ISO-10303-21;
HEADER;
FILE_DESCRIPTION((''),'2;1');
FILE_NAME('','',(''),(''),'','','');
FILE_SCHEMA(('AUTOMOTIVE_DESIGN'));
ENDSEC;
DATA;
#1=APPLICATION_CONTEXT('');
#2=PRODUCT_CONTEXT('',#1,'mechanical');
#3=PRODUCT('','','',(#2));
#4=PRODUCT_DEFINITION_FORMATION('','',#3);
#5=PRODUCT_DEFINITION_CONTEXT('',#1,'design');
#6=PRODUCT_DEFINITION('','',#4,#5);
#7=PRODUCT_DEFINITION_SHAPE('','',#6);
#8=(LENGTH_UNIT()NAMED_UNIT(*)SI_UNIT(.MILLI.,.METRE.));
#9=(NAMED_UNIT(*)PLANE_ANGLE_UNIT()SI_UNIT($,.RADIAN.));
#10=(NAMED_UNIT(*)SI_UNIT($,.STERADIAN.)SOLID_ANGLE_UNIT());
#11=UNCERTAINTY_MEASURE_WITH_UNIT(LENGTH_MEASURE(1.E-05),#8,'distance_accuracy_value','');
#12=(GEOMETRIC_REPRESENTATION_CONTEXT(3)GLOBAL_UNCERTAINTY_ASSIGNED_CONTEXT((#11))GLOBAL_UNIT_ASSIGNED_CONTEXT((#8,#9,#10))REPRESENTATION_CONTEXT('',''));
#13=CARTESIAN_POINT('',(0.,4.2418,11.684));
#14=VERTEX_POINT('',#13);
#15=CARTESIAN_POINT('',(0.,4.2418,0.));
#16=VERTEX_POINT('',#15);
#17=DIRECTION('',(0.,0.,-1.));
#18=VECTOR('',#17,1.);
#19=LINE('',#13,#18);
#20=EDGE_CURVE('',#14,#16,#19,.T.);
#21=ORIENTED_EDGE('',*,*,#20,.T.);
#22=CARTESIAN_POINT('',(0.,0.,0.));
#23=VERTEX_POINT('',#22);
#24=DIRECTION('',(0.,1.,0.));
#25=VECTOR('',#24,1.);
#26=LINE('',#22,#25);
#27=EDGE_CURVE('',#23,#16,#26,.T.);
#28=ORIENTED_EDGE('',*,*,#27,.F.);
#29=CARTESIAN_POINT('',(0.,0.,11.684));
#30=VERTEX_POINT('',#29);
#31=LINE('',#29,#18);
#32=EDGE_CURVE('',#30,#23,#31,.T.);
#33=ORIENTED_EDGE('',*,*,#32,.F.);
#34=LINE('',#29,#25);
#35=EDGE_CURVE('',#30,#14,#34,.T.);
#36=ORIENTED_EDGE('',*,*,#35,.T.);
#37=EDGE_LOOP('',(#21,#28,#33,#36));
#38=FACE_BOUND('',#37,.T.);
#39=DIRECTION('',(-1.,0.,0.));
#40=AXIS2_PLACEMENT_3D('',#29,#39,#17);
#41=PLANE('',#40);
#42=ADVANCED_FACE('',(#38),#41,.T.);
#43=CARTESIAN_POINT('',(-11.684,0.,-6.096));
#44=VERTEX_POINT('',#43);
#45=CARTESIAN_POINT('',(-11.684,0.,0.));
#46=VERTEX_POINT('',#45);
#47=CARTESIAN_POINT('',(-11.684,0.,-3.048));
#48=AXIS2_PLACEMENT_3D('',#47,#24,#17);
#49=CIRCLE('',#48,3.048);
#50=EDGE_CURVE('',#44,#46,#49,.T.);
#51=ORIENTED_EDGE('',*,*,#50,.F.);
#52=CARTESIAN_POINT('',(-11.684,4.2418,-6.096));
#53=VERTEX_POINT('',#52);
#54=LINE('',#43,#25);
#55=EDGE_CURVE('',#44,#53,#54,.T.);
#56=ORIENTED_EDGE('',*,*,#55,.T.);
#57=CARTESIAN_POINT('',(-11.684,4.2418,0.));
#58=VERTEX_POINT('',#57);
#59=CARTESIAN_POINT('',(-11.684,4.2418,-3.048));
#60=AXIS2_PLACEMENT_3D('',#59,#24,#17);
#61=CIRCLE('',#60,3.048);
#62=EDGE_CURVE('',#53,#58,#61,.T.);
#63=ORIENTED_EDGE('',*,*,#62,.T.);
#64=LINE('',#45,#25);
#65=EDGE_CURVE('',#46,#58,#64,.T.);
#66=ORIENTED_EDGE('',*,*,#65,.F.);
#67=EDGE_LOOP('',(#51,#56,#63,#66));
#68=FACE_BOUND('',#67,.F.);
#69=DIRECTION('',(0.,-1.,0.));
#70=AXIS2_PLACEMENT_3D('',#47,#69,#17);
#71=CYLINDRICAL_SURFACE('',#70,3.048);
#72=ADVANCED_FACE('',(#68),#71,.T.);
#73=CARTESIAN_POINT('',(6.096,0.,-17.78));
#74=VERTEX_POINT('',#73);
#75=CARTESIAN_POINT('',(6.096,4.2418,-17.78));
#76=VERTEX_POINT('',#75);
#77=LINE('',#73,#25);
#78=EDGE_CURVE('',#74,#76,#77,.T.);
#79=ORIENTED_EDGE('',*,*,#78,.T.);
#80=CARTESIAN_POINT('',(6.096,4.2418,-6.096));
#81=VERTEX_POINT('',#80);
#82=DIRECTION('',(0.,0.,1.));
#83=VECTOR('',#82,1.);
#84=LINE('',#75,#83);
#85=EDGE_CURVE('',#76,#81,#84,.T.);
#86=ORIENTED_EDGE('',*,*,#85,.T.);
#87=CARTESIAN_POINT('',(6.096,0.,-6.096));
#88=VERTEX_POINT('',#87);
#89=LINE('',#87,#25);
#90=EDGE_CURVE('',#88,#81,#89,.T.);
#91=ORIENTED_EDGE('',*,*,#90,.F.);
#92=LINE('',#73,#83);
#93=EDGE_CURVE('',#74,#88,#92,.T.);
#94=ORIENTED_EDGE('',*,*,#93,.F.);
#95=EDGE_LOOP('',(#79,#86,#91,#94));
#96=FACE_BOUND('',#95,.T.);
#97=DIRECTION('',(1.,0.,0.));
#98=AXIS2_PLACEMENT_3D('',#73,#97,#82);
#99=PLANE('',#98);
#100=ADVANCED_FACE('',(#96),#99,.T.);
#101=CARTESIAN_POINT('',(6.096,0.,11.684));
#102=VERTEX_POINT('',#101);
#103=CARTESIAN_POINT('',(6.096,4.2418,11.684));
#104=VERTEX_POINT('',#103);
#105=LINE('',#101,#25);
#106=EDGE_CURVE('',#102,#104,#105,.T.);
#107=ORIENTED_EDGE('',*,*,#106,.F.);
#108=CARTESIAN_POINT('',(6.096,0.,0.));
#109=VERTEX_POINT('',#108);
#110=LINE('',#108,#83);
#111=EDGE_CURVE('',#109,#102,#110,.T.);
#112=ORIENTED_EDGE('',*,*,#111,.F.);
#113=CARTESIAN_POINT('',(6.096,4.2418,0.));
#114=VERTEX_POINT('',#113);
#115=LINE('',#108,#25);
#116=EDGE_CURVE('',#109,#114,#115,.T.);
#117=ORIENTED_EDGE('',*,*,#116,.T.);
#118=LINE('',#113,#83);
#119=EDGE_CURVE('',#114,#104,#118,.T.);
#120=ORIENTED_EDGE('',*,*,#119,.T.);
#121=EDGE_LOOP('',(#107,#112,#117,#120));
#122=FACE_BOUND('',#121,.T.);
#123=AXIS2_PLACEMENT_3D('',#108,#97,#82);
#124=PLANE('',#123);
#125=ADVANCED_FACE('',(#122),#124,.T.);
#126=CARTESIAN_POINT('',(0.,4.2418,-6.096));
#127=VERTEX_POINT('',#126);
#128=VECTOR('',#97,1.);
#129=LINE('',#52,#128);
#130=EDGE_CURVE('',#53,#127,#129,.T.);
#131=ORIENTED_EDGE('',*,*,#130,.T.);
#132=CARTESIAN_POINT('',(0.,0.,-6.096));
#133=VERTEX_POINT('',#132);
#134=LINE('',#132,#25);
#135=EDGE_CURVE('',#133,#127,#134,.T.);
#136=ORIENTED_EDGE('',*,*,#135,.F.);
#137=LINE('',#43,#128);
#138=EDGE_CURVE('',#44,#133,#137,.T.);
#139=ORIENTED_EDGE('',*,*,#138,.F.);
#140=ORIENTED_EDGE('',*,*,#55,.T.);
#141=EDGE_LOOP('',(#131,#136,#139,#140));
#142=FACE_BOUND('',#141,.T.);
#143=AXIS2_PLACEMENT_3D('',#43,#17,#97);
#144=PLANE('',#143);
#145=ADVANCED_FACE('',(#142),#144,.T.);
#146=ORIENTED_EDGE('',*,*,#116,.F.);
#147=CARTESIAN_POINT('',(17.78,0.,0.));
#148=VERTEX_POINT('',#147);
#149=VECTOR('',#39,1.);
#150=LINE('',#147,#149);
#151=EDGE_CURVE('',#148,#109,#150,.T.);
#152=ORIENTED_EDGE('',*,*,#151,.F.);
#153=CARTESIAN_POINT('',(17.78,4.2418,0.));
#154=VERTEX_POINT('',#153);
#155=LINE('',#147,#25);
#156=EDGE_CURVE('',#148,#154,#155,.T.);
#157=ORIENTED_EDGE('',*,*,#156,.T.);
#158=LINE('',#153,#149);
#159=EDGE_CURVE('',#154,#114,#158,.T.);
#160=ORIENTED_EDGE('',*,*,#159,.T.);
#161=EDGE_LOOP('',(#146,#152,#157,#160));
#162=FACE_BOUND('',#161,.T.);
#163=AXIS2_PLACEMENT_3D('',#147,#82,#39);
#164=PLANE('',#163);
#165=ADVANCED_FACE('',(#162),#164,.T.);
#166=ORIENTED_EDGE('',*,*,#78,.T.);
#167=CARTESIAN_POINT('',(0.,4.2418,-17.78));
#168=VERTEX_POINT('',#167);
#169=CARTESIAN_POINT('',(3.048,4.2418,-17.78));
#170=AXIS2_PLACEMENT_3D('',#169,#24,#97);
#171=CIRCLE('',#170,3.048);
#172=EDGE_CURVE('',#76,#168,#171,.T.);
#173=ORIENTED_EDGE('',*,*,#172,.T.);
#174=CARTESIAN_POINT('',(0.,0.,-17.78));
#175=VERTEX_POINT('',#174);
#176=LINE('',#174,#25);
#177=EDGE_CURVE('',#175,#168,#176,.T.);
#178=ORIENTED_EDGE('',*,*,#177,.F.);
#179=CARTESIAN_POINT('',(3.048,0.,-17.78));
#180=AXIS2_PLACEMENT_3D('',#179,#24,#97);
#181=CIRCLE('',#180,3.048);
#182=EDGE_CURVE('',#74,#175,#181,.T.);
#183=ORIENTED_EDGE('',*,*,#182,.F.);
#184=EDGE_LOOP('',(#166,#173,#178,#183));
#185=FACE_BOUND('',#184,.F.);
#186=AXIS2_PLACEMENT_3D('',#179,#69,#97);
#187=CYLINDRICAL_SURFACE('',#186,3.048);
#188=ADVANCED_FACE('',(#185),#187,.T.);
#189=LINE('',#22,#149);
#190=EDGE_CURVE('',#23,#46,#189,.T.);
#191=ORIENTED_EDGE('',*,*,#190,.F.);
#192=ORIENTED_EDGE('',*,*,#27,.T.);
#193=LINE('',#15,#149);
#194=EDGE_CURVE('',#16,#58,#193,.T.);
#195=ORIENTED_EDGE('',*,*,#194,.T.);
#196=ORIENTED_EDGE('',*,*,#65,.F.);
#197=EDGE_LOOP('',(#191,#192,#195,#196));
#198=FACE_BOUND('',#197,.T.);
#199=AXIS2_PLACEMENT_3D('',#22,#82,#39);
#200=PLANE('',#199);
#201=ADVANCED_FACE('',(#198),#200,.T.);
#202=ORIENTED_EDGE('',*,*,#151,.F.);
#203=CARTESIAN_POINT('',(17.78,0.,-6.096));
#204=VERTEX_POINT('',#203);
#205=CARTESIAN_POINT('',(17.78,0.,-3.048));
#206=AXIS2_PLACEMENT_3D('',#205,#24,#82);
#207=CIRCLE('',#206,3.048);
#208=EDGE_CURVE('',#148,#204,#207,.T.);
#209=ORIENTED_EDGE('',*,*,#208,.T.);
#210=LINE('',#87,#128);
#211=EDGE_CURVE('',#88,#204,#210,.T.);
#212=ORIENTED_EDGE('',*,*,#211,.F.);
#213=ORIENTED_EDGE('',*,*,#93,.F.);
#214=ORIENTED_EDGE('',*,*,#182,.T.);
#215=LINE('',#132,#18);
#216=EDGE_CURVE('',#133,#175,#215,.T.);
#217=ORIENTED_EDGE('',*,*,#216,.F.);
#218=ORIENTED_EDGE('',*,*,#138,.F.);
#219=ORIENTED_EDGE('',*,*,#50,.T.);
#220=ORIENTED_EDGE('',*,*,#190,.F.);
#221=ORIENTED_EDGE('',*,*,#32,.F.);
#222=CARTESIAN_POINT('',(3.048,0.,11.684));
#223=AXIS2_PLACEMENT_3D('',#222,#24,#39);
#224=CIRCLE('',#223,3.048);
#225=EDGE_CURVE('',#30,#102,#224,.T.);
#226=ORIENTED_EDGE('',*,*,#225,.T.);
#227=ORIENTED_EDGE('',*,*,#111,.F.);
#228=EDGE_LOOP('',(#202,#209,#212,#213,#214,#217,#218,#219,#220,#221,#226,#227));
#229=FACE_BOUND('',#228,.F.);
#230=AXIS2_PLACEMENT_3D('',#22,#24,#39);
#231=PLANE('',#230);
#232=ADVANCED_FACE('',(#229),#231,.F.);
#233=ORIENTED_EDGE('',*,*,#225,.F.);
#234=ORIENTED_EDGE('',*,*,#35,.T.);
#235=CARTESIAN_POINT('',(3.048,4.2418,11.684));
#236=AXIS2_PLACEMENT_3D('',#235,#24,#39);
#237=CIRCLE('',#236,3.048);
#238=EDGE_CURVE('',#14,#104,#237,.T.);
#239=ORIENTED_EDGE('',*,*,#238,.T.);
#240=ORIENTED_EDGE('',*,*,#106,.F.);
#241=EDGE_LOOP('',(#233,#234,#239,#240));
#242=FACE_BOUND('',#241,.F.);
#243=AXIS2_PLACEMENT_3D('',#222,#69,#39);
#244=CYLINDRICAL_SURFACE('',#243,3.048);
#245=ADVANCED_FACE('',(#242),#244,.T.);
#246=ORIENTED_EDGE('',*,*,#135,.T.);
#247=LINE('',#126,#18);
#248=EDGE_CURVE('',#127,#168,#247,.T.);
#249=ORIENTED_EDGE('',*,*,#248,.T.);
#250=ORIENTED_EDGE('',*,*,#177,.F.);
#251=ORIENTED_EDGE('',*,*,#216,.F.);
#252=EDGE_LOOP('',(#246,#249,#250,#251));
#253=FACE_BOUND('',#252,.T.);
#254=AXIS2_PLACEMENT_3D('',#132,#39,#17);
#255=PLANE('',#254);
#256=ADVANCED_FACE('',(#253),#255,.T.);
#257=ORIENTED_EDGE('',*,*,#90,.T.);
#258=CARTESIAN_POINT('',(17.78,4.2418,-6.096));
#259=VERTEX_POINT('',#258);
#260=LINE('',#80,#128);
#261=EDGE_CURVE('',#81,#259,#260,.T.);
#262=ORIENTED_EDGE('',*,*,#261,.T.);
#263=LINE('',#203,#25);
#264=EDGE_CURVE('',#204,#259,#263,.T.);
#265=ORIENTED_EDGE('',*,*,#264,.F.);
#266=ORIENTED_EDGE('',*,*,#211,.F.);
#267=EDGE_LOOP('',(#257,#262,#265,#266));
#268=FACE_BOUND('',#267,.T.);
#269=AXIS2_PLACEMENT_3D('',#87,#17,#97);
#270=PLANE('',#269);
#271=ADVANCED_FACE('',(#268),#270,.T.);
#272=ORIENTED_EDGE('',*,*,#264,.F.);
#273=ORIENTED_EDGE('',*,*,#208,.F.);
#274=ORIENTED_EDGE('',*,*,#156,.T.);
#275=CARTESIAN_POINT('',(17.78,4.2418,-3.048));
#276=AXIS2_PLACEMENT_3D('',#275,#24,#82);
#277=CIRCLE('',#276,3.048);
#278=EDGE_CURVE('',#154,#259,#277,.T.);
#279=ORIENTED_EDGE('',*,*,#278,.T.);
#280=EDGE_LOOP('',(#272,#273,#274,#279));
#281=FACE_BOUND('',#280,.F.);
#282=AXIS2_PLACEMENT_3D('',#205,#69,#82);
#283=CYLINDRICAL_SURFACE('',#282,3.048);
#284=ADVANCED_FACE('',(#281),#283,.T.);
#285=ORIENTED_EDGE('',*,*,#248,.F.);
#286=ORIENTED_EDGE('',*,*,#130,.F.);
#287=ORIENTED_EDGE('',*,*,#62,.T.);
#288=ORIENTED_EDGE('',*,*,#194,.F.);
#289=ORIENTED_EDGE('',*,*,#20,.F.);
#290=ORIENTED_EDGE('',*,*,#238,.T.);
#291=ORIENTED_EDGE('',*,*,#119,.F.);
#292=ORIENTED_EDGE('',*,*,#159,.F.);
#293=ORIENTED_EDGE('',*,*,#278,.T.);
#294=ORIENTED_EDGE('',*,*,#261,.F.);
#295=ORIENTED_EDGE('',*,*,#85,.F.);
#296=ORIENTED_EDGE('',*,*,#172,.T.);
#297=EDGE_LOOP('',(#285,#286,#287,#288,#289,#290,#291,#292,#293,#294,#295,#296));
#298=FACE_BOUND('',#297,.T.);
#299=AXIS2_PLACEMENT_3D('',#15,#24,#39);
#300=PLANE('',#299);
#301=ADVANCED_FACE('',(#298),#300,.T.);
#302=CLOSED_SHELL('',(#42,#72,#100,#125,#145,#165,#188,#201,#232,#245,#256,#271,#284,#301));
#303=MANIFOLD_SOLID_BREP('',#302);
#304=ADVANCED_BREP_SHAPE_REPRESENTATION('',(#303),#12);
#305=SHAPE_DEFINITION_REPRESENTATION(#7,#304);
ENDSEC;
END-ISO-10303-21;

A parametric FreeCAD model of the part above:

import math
import FreeCAD as App
import Part
import Sketcher
from FreeCAD import Vector
Q = App.Units.Quantity

doc = App.newDocument("Part")
body = doc.addObject("PartDesign::Body", "Body")

# Sketch on XZ plane
sketch1 = body.newObject("Sketcher::SketchObject", "Sketch")
sketch1.AttachmentSupport = (doc.getObject("XZ_Plane"), [""])
sketch1.MapMode = "FlatFace"
sketch1.addGeometry([
    Part.LineSegment(Vector(-11.684, 0, 0), Vector(0, 0, 0)),  # 0
    Part.LineSegment(Vector(0, 0, 0), Vector(0, 11.684, 0)),  # 1
    Part.ArcOfCircle(Part.Circle(Vector(3.048, 11.684, 0), Vector(0, 0, 1), 3.048), math.radians(0), math.radians(180)),  # 2
    Part.LineSegment(Vector(6.096, 11.684, 0), Vector(6.096, 0, 0)),  # 3
    Part.LineSegment(Vector(6.096, 0, 0), Vector(17.78, 0, 0)),  # 4
    Part.ArcOfCircle(Part.Circle(Vector(17.78, -3.048, 0), Vector(0, 0, 1), 3.048), math.radians(-90), math.radians(90)),  # 5
    Part.LineSegment(Vector(17.78, -6.096, 0), Vector(6.096, -6.096, 0)),  # 6
    Part.LineSegment(Vector(6.096, -6.096, 0), Vector(6.096, -17.78, 0)),  # 7
    Part.ArcOfCircle(Part.Circle(Vector(3.048, -17.78, 0), Vector(0, 0, 1), 3.048), math.radians(180), math.radians(360)),  # 8
    Part.LineSegment(Vector(0, -17.78, 0), Vector(0, -6.096, 0)),  # 9
    Part.LineSegment(Vector(0, -6.096, 0), Vector(-11.684, -6.096, 0)),  # 10
    Part.ArcOfCircle(Part.Circle(Vector(-11.684, -3.048, 0), Vector(0, 0, 1), 3.048), math.radians(90), math.radians(270)),  # 11
], False)
sketch1.addConstraint([
    Sketcher.Constraint("Coincident", 0, 2, 1, 1),
    Sketcher.Constraint("Tangent", 1, 2, 2, 2),
    Sketcher.Constraint("Tangent", 2, 1, 3, 1),
    Sketcher.Constraint("Coincident", 3, 2, 4, 1),
    Sketcher.Constraint("Tangent", 4, 2, 5, 2),
    Sketcher.Constraint("Tangent", 5, 1, 6, 1),
    Sketcher.Constraint("Coincident", 6, 2, 7, 1),
    Sketcher.Constraint("Tangent", 7, 2, 8, 2),
    Sketcher.Constraint("Tangent", 8, 1, 9, 1),
    Sketcher.Constraint("Coincident", 9, 2, 10, 1),
    Sketcher.Constraint("Tangent", 10, 2, 11, 2),
    Sketcher.Constraint("Tangent", 11, 1, 0, 1),
    Sketcher.Constraint("Horizontal", 0),
    Sketcher.Constraint("Vertical", 1),
    Sketcher.Constraint("Vertical", 3),
    Sketcher.Constraint("Horizontal", 4),
    Sketcher.Constraint("Horizontal", 6),
    Sketcher.Constraint("Vertical", 7),
    Sketcher.Constraint("Vertical", 9),
    Sketcher.Constraint("Horizontal", 10),
    Sketcher.Constraint("Coincident", 0, 2, -1, 1),
    Sketcher.Constraint("Equal", 2, 5),
    Sketcher.Constraint("Equal", 5, 8),
    Sketcher.Constraint("Equal", 8, 11),
    Sketcher.Constraint("PointOnObject", 3, 2, -1),
    Sketcher.Constraint("PointOnObject", 8, 1, -2),
    Sketcher.Constraint("Equal", 0, 4),
    Sketcher.Constraint("Equal", 10, 1),
    Sketcher.Constraint("Equal", 3, 7),
    Sketcher.Constraint("Radius", 2, Q("0.12 in")),
    Sketcher.Constraint("DistanceX", 0, 1, 0, 2, Q("0.46 in")),
])
pad1 = body.newObject("PartDesign::Pad", "Pad")
pad1.Profile = sketch1
pad1.Length = Q("0.167 in")
pad1.Reversed = True

doc.recompute()
